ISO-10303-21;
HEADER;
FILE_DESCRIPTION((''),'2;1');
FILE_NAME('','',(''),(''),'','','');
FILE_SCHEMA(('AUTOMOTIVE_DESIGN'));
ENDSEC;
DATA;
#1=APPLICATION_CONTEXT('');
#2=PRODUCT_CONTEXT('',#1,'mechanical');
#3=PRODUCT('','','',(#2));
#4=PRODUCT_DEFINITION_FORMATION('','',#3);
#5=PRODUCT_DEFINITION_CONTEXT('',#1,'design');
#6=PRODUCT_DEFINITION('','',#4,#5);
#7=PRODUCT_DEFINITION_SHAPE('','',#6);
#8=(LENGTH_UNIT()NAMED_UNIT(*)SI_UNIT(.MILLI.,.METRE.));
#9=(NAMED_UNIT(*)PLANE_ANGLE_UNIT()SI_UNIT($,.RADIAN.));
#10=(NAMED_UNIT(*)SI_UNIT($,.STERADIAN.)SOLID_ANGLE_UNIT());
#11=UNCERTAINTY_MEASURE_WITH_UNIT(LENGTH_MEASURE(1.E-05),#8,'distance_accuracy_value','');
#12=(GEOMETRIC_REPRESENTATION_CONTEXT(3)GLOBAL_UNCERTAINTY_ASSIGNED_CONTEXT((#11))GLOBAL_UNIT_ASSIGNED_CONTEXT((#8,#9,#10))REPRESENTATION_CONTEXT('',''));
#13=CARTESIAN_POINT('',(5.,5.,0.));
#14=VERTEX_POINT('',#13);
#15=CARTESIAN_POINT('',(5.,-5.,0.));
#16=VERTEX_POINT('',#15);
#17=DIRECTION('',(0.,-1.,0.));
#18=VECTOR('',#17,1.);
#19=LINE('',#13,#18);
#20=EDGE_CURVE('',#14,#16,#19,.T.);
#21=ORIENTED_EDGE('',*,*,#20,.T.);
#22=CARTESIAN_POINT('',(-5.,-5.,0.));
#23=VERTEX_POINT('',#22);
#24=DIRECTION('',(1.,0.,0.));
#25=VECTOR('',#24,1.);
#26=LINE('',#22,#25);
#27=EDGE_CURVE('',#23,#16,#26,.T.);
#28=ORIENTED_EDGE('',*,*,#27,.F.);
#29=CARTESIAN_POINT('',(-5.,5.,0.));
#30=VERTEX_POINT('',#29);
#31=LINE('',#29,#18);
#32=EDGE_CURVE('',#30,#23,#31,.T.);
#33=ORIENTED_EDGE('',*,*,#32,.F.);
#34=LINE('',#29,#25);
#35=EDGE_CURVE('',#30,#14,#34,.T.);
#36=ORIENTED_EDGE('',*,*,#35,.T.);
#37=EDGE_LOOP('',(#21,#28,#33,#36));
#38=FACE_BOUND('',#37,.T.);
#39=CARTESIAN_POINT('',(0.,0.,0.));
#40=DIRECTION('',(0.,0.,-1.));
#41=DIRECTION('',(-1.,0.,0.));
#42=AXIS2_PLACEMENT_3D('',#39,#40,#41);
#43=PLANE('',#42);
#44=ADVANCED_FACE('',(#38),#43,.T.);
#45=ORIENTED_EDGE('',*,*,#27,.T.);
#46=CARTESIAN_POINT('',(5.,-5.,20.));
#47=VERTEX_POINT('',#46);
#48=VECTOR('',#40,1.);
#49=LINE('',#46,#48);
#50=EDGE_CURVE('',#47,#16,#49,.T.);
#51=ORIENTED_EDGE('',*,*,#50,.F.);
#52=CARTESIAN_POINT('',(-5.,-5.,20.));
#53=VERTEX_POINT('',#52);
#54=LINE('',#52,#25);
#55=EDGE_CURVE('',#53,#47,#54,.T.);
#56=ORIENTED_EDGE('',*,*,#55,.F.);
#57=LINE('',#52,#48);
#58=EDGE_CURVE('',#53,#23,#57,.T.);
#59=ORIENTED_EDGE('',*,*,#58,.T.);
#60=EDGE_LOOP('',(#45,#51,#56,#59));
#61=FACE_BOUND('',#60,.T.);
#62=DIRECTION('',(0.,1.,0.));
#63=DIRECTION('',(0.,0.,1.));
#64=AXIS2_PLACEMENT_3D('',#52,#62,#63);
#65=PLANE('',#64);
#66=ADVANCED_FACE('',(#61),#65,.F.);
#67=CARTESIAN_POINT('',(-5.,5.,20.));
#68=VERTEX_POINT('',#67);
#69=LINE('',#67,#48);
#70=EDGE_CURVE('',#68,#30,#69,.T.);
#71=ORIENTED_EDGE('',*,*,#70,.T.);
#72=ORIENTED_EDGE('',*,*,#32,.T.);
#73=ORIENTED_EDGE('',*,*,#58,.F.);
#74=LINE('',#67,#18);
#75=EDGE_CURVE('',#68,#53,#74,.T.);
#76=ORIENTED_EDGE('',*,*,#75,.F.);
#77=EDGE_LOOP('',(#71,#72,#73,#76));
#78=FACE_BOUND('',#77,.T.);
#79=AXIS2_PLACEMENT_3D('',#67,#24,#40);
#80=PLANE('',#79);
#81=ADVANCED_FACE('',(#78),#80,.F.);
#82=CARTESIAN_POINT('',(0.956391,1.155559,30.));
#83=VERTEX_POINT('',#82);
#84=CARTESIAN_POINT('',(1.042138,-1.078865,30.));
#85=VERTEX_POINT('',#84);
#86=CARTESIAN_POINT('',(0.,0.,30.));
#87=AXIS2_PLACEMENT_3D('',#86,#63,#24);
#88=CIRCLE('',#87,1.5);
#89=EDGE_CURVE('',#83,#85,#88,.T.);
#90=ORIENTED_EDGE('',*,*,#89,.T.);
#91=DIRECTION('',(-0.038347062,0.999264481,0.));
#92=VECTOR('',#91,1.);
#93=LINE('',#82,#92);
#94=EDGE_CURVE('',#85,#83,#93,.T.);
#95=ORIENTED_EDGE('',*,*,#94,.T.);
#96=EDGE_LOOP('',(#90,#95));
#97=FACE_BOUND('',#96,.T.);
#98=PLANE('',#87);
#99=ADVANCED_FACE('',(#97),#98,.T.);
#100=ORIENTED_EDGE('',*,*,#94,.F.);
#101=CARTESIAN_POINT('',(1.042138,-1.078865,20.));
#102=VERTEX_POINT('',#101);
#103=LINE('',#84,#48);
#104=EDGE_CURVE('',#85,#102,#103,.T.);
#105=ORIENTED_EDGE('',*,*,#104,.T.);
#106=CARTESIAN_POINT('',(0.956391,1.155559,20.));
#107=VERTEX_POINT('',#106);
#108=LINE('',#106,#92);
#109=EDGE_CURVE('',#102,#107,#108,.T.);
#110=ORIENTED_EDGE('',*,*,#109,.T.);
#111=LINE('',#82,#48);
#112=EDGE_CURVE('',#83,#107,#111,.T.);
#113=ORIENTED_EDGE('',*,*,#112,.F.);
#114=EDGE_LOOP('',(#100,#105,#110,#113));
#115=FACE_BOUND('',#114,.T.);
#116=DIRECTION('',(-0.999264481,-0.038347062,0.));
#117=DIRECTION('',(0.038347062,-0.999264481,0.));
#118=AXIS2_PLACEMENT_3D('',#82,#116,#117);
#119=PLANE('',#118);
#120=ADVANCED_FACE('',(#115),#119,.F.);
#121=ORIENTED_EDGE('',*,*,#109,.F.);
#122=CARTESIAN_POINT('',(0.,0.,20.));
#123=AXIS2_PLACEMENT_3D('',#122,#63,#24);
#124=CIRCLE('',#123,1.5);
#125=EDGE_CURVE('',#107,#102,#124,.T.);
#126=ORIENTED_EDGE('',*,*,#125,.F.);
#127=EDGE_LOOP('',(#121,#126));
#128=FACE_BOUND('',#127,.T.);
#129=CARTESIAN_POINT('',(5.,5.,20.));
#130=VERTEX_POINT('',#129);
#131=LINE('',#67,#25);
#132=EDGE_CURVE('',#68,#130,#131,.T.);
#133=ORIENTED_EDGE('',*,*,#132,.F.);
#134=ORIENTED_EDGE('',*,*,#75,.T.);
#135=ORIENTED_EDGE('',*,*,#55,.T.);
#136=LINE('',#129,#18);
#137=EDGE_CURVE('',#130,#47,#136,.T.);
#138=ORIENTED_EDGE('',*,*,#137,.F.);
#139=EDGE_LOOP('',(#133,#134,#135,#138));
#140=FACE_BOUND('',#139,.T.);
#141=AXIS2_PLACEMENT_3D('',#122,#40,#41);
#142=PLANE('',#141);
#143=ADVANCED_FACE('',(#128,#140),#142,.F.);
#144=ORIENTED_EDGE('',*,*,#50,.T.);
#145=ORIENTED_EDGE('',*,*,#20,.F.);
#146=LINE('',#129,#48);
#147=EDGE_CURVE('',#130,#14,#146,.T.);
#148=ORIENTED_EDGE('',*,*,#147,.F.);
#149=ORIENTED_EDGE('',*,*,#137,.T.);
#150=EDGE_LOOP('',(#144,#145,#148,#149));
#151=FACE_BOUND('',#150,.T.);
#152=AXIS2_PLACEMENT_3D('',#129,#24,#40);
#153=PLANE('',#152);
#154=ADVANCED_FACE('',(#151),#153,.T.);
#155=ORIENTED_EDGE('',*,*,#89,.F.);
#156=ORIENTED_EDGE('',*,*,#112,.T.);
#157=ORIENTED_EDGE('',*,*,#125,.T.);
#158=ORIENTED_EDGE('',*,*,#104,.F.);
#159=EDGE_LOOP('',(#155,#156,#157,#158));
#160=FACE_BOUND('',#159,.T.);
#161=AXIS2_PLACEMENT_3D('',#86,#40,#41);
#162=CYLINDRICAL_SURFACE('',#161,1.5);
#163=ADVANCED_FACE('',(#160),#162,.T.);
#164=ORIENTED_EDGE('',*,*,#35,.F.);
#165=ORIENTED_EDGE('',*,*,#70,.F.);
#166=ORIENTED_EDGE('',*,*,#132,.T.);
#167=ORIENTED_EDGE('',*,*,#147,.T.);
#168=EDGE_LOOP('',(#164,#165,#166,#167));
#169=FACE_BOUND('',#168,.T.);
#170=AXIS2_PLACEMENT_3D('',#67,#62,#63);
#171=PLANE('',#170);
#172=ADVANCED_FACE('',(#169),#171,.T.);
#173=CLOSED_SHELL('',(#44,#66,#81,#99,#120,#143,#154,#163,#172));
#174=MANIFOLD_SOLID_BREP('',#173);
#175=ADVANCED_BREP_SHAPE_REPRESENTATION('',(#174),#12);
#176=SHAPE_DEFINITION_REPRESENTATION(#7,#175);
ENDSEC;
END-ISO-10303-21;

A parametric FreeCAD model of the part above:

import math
import FreeCAD as App
import Part
import Sketcher

V = App.Vector
Q = App.Units.Quantity

doc = App.newDocument("Part")
body = doc.addObject("PartDesign::Body", "Body")

# Sketch on XY plane
sketch1 = body.newObject("Sketcher::SketchObject", "Sketch")
sketch1.AttachmentSupport = (doc.getObject("XY_Plane"), [""])
sketch1.MapMode = "FlatFace"
sketch1.addGeometry([
    Part.LineSegment(V(-5, 5, 0), V(-5, -5, 0)),
    Part.LineSegment(V(-5, -5, 0), V(5, -5, 0)),
    Part.LineSegment(V(5, -5, 0), V(5, 5, 0)),
    Part.LineSegment(V(5, 5, 0), V(-5, 5, 0)),
], False)
sketch1.addConstraint([
    Sketcher.Constraint("Coincident", 0, 2, 1, 1),
    Sketcher.Constraint("Coincident", 1, 2, 2, 1),
    Sketcher.Constraint("Coincident", 2, 2, 3, 1),
    Sketcher.Constraint("Coincident", 3, 2, 0, 1),
    Sketcher.Constraint("Vertical", 0),
    Sketcher.Constraint("Horizontal", 1),
    Sketcher.Constraint("Vertical", 2),
    Sketcher.Constraint("Horizontal", 3),
    Sketcher.Constraint("Symmetric", 0, 2, 2, 2, -1, 1),
    Sketcher.Constraint("Equal", 3, 0),
    Sketcher.Constraint("DistanceX", 1, 1, 1, 2, Q("10 mm")),
])
pad1 = body.newObject("PartDesign::Pad", "Pad")
pad1.Profile = sketch1
pad1.Length = 20

# Sketch on XY plane
sketch2 = body.newObject("Sketcher::SketchObject", "Sketch001")
sketch2.AttachmentSupport = (doc.getObject("XY_Plane"), [""])
sketch2.MapMode = "FlatFace"
sketch2.AttachmentOffset = App.Placement(V(0, 0, 20), App.Rotation())
sketch2.addGeometry([
    Part.LineSegment(V(1, -1.1, 0), V(1, 1.2, 0)),
    Part.ArcOfCircle(Part.Circle(V(0, 0, 0), V(0, 0, 1), 1.5), math.radians(50), math.radians(314)),
], False)
sketch2.addConstraint([
    Sketcher.Constraint("Coincident", 0, 1, 1, 2),
    Sketcher.Constraint("Coincident", 1, 1, 0, 2),
    Sketcher.Constraint("Coincident", 1, 3, -1, 1),
    Sketcher.Constraint("Radius", 1, Q("1.5 mm")),
    Sketcher.Constraint("DistanceX", -1, 1, 1, 1, Q("0.956391 mm")),
    Sketcher.Constraint("Distance", 0, Q("2.236068 mm")),
])
pad2 = body.newObject("PartDesign::Pad", "Pad001")
pad2.Profile = sketch2
pad2.Length = 10

doc.recompute()
